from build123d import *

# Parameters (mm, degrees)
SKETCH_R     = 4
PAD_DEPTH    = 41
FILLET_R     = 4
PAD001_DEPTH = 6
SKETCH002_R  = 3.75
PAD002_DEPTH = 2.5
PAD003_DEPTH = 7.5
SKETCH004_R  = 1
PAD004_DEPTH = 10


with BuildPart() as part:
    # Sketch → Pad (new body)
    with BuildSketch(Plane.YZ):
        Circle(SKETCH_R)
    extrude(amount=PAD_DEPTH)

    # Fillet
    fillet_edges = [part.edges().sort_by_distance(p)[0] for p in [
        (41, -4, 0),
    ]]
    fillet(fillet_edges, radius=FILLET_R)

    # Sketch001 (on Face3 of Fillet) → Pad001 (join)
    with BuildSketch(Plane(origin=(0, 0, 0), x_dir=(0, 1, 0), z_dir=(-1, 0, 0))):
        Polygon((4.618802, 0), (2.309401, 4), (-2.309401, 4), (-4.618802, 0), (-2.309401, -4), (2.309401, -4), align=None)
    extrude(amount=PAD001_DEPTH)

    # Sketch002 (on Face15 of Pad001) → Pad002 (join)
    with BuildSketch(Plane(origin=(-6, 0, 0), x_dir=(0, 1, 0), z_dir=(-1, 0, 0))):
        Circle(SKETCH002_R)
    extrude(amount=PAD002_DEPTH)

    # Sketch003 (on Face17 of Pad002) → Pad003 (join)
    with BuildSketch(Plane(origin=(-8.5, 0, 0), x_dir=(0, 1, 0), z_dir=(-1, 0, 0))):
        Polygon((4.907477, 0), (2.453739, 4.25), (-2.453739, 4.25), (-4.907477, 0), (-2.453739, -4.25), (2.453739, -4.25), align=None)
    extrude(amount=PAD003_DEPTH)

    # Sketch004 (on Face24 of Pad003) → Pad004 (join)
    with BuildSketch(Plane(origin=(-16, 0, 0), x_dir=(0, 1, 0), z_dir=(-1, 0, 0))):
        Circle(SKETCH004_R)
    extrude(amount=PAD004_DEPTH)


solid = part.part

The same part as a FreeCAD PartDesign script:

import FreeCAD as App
import Part
import Sketcher
from FreeCAD import Vector
Q = App.Units.Quantity


def edges_at(feature, points):
    """Names of the edges that pass closest to the given points."""
    edges = feature.Shape.Edges
    near = lambda p: min(range(len(edges)), key=lambda i: edges[i].distToShape(Part.Vertex(*p))[0])
    return sorted({f"Edge{near(p) + 1}" for p in points})

doc = App.newDocument("Part")
params = doc.addObject("Spreadsheet::Sheet", "Params")
for row, (alias, value) in enumerate([
    ("sketch1_diameter", "8 mm"),
    ("pad1_length", "41 mm"),
    ("fillet_radius", "4 mm"),
    ("pad2_length", "6 mm"),
    ("sketch3_diameter", "7.5 mm"),
    ("pad3_length", "2.5 mm"),
    ("pad4_length", "7.5 mm"),
    ("sketch5_diameter", "2 mm"),
    ("pad5_length", "10 mm"),
], start=1):
    params.set(f"A{row}", alias)
    params.set(f"B{row}", "=" + value)
    params.setAlias(f"B{row}", alias)

body = doc.addObject("PartDesign::Body", "Body")

# Sketch on YZ plane
sketch1 = body.newObject("Sketcher::SketchObject", "Sketch")
sketch1.AttachmentSupport = (doc.getObject("YZ_Plane"), [""])
sketch1.MapMode = "FlatFace"
sketch1.addGeometry(Part.Circle(Vector(0, 0, 0), Vector(0, 0, 1), 4), False)
sketch1.addConstraint([
    Sketcher.Constraint("Coincident", 0, 3, -1, 1),
    Sketcher.Constraint("Diameter", 0, 8.0),
])
sketch1.setExpression("Constraints[1]", "Params.sketch1_diameter")
pad1 = body.newObject("PartDesign::Pad", "Pad")
pad1.Profile = sketch1
pad1.setExpression("Length", "Params.pad1_length")
doc.recompute()

fillet = body.newObject("PartDesign::Fillet", "Fillet")
fillet.Base = (pad1, edges_at(pad1, [(41, -4, 0)]))
fillet.setExpression("Radius", "Params.fillet_radius")

# Sketch on YZ plane
sketch2 = body.newObject("Sketcher::SketchObject", "Sketch001")
sketch2.AttachmentSupport = (doc.getObject("YZ_Plane"), [""])
sketch2.MapMode = "FlatFace"
sketch2.addGeometry([
    Part.LineSegment(Vector(4.6, 0, 0), Vector(2.3, -4, 0)),  # 0
    Part.LineSegment(Vector(2.3, -4, 0), Vector(-2.3, -4, 0)),  # 1
    Part.LineSegment(Vector(-2.3, -4, 0), Vector(-4.6, 0, 0)),  # 2
    Part.LineSegment(Vector(-4.6, 0, 0), Vector(-2.3, 4, 0)),  # 3
    Part.LineSegment(Vector(-2.3, 4, 0), Vector(2.3, 4, 0)),  # 4
    Part.LineSegment(Vector(2.3, 4, 0), Vector(4.6, 0, 0)),  # 5
], False)
sketch2.addConstraint([
    Sketcher.Constraint("Coincident", 0, 2, 1, 1),
    Sketcher.Constraint("Coincident", 1, 2, 2, 1),
    Sketcher.Constraint("Coincident", 2, 2, 3, 1),
    Sketcher.Constraint("Coincident", 3, 2, 4, 1),
    Sketcher.Constraint("Coincident", 4, 2, 5, 1),
    Sketcher.Constraint("Coincident", 5, 2, 0, 1),
    Sketcher.Constraint("Horizontal", 1),
    Sketcher.Constraint("Horizontal", 4),
    Sketcher.Constraint("Symmetric", 0, 2, 3, 2, -1, 1),
    Sketcher.Constraint("Symmetric", 2, 2, 5, 2, -1, 1),
    Sketcher.Constraint("PointOnObject", 2, 2, -1),
    Sketcher.Constraint("Parallel", 2, 5),
    Sketcher.Constraint("Vertical", 1, 2, 3, 2),
    Sketcher.Constraint("Angle", 0, Q("-119.999999 deg")),
    Sketcher.Constraint("DistanceY", 0, 2, -1, 1, 4.0),
    Sketcher.Constraint("DistanceX", 1, 2, 1, 1, 4.618802),
])
pad2 = body.newObject("PartDesign::Pad", "Pad001")
pad2.Profile = sketch2
pad2.setExpression("Length", "Params.pad2_length")
pad2.Reversed = True

# Sketch on YZ plane
sketch3 = body.newObject("Sketcher::SketchObject", "Sketch002")
sketch3.AttachmentSupport = (doc.getObject("YZ_Plane"), [""])
sketch3.MapMode = "FlatFace"
sketch3.AttachmentOffset = App.Placement(Vector(0, 0, -6), App.Rotation())
sketch3.addGeometry(Part.Circle(Vector(0, 0, 0), Vector(0, 0, 1), 3.8), False)
sketch3.addConstraint([
    Sketcher.Constraint("Coincident", 0, 3, -1, 1),
    Sketcher.Constraint("Diameter", 0, 7.5),
])
sketch3.setExpression("Constraints[1]", "Params.sketch3_diameter")
pad3 = body.newObject("PartDesign::Pad", "Pad002")
pad3.Profile = sketch3
pad3.setExpression("Length", "Params.pad3_length")
pad3.Reversed = True

# Sketch on YZ plane
sketch4 = body.newObject("Sketcher::SketchObject", "Sketch003")
sketch4.AttachmentSupport = (doc.getObject("YZ_Plane"), [""])
sketch4.MapMode = "FlatFace"
sketch4.AttachmentOffset = App.Placement(Vector(0, 0, -8.5), App.Rotation())
sketch4.addGeometry([
    Part.LineSegment(Vector(4.9, 0, 0), Vector(2.5, -4.2, 0)),  # 0
    Part.LineSegment(Vector(2.5, -4.2, 0), Vector(-2.5, -4.2, 0)),  # 1
    Part.LineSegment(Vector(-2.5, -4.2, 0), Vector(-4.9, 0, 0)),  # 2
    Part.LineSegment(Vector(-4.9, 0, 0), Vector(-2.5, 4.2, 0)),  # 3
    Part.LineSegment(Vector(-2.5, 4.2, 0), Vector(2.5, 4.2, 0)),  # 4
    Part.LineSegment(Vector(2.5, 4.2, 0), Vector(4.9, 0, 0)),  # 5
], False)
sketch4.addConstraint([
    Sketcher.Constraint("Coincident", 0, 2, 1, 1),
    Sketcher.Constraint("Coincident", 1, 2, 2, 1),
    Sketcher.Constraint("Coincident", 2, 2, 3, 1),
    Sketcher.Constraint("Coincident", 3, 2, 4, 1),
    Sketcher.Constraint("Coincident", 4, 2, 5, 1),
    Sketcher.Constraint("Coincident", 5, 2, 0, 1),
    Sketcher.Constraint("Horizontal", 1),
    Sketcher.Constraint("Horizontal", 4),
    Sketcher.Constraint("Symmetric", 0, 2, 3, 2, -1, 1),
    Sketcher.Constraint("Symmetric", 2, 2, 5, 2, -1, 1),
    Sketcher.Constraint("PointOnObject", 2, 2, -1),
    Sketcher.Constraint("Parallel", 2, 5),
    Sketcher.Constraint("Vertical", 1, 2, 3, 2),
    Sketcher.Constraint("Angle", 0, Q("-119.999993 deg")),
    Sketcher.Constraint("DistanceY", 1, 2, 3, 2, 8.5),
    Sketcher.Constraint("DistanceX", 1, 2, 1, 1, 4.907478),
])
pad4 = body.newObject("PartDesign::Pad", "Pad003")
pad4.Profile = sketch4
pad4.setExpression("Length", "Params.pad4_length")
pad4.Reversed = True

# Sketch on YZ plane
sketch5 = body.newObject("Sketcher::SketchObject", "Sketch004")
sketch5.AttachmentSupport = (doc.getObject("YZ_Plane"), [""])
sketch5.MapMode = "FlatFace"
sketch5.AttachmentOffset = App.Placement(Vector(0, 0, -16), App.Rotation())
sketch5.addGeometry(Part.Circle(Vector(0, 0, 0), Vector(0, 0, 1), 1), False)
sketch5.addConstraint([
    Sketcher.Constraint("Coincident", 0, 3, -1, 1),
    Sketcher.Constraint("Diameter", 0, 2.0),
])
sketch5.setExpression("Constraints[1]", "Params.sketch5_diameter")
pad5 = body.newObject("PartDesign::Pad", "Pad004")
pad5.Profile = sketch5
pad5.setExpression("Length", "Params.pad5_length")
pad5.Reversed = True

doc.recompute()
